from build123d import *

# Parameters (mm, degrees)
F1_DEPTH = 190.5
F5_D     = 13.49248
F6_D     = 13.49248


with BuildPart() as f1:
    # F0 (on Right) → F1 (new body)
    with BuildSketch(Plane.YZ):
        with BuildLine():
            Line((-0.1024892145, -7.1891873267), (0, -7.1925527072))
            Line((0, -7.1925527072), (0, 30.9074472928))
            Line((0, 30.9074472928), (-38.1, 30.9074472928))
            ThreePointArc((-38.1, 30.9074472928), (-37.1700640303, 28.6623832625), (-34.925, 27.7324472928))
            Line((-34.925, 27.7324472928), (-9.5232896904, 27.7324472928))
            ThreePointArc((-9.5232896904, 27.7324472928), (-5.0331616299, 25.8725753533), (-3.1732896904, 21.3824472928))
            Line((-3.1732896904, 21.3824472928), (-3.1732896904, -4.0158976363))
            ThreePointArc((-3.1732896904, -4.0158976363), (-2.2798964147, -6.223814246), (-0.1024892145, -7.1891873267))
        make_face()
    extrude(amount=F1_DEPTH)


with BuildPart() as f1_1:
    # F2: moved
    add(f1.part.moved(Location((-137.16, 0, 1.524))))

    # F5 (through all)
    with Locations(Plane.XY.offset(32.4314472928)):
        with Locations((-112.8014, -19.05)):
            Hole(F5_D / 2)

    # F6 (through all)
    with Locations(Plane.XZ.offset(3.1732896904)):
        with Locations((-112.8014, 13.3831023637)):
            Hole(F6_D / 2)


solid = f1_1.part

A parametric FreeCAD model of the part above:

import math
import FreeCAD as App
import Part
import Sketcher
from FreeCAD import Vector
Q = App.Units.Quantity

doc = App.newDocument("Part")
params = doc.addObject("Spreadsheet::Sheet", "Params")
for row, (alias, value) in enumerate([
    ("sketch1_radius", "0.25 in"),
    ("sketch1_width", "1.5 in"),
    ("sketch1_radius2", "0.125 in"),
    ("pad1_length", "7.5 in"),
    ("hole_diameter", "0.5312 in"),
    ("hole2_diameter", "0.5312 in"),
], start=1):
    params.set(f"A{row}", alias)
    params.set(f"B{row}", "=" + value)
    params.setAlias(f"B{row}", alias)

body = doc.addObject("PartDesign::Body", "Body")

# Sketch on YZ plane
sketch1 = doc.addObject("Sketcher::SketchObject", "Sketch")
body.addObject(sketch1)
sketch1.AttachmentSupport = (doc.YZ_Plane, [""])
sketch1.MapMode = "FlatFace"
sketch1.addGeometry([
    Part.LineSegment(Vector(-0.1, -7.19, 0), Vector(0, -7.19, 0)),  # 0
    Part.LineSegment(Vector(0, -7.19, 0), Vector(0, 30.91, 0)),  # 1
    Part.LineSegment(Vector(0, 30.91, 0), Vector(-38.1, 30.91, 0)),  # 2
    Part.ArcOfCircle(Part.Circle(Vector(-34.92, 30.91, 0), Vector(0, 0, 1), 3.17), math.radians(180), math.radians(270)),  # 3
    Part.LineSegment(Vector(-34.92, 27.73, 0), Vector(-9.52, 27.73, 0)),  # 4
    Part.ArcOfCircle(Part.Circle(Vector(-9.52, 21.38, 0), Vector(0, 0, 1), 6.35), math.radians(0), math.radians(90)),  # 5
    Part.LineSegment(Vector(-3.17, 21.38, 0), Vector(-3.17, -4.02, 0)),  # 6
    Part.ArcOfCircle(Part.Circle(Vector(0, -4.02, 0), Vector(0, 0, 1), 3.17), math.radians(180), math.radians(268)),  # 7
], False)
sketch1.addConstraint([
    Sketcher.Constraint("Coincident", 0, 2, 1, 1),
    Sketcher.Constraint("Coincident", 1, 2, 2, 1),
    Sketcher.Constraint("Coincident", 2, 2, 3, 1),
    Sketcher.Constraint("Tangent", 3, 2, 4, 1),
    Sketcher.Constraint("Tangent", 4, 2, 5, 2),
    Sketcher.Constraint("Tangent", 5, 1, 6, 1),
    Sketcher.Constraint("Tangent", 6, 2, 7, 1),
    Sketcher.Constraint("Tangent", 7, 2, 0, 1),
    Sketcher.Constraint("Vertical", 1),
    Sketcher.Constraint("Horizontal", 2),
    Sketcher.Constraint("Horizontal", 4),
    Sketcher.Constraint("Vertical", 6),
    Sketcher.Constraint("Equal", 3, 7),
    Sketcher.Constraint("PointOnObject", 0, 2, -2),
    Sketcher.Constraint("Horizontal", 3, 3, 1, 2),
    Sketcher.Constraint("Equal", 2, 1),
    Sketcher.Constraint("Radius", 5, Q("0.25 in")),
    Sketcher.Constraint("DistanceX", 2, 2, 2, 1, Q("1.5 in")),
    Sketcher.Constraint("Radius", 3, Q("0.125 in")),
    Sketcher.Constraint("DistanceX", 4, 1, 4, 2, 25.40171),
    Sketcher.Constraint("DistanceX", 7, 2, 7, 3, 0.1042),
    Sketcher.Constraint("DistanceY", -1, 1, 3, 3, 30.907447),
])
sketch1.setExpression("Constraints[16]", "Params.sketch1_radius")
sketch1.setExpression("Constraints[17]", "Params.sketch1_width")
sketch1.setExpression("Constraints[18]", "Params.sketch1_radius2")
pad1 = doc.addObject("PartDesign::Pad", "Pad")
body.addObject(pad1)
pad1.Profile = sketch1
pad1.setExpression("Length", "Params.pad1_length")
body2 = doc.addObject("PartDesign::Body", "Body001")
doc.recompute()

body.Placement = App.Placement(Vector(-137.16, 0, 1.524), App.Rotation(Vector(0, 0, 1), 0))
boolean = doc.addObject("PartDesign::Boolean", "Boolean")
body2.addObject(boolean)
boolean.Type = "Fuse"
boolean.addObjects([body])

# Sketch on XY plane
sketch2 = doc.addObject("Sketcher::SketchObject", "Sketch001")
body2.addObject(sketch2)
sketch2.AttachmentSupport = (doc.getObject("XY_Plane001"), [""])
sketch2.MapMode = "FlatFace"
sketch2.AttachmentOffset = App.Placement(Vector(0, 0, 32.431447), App.Rotation())
sketch2.addGeometry(Part.Circle(Vector(-113, -19, 0), Vector(0, 0, 1), 7), False)
sketch2.addConstraint([
    Sketcher.Constraint("Diameter", 0, Q("0.5312 in")),
    Sketcher.Constraint("DistanceY", 0, 3, -1, 1, Q("0.75 in")),
    Sketcher.Constraint("DistanceX", 0, 3, -1, 1, Q("4.441 in")),
])
doc.recompute()
hole = doc.addObject("PartDesign::Hole", "Hole")
body2.addObject(hole)
hole.Profile = sketch2
hole.ThreadType = "None"
hole.setExpression("Diameter", "Params.hole_diameter")
hole.DepthType = "ThroughAll"

# Sketch on XZ plane
sketch3 = doc.addObject("Sketcher::SketchObject", "Sketch002")
body2.addObject(sketch3)
sketch3.AttachmentSupport = (doc.getObject("XZ_Plane001"), [""])
sketch3.MapMode = "FlatFace"
sketch3.AttachmentOffset = App.Placement(Vector(0, 0, 3.17329), App.Rotation())
sketch3.addGeometry(Part.Circle(Vector(-113, 13, 0), Vector(0, 0, 1), 7), False)
sketch3.addConstraint([
    Sketcher.Constraint("Diameter", 0, Q("0.5312 in")),
    Sketcher.Constraint("DistanceX", 0, 3, -1, 1, Q("4.441 in")),
    Sketcher.Constraint("DistanceY", -1, 1, 0, 3, 13.383102),
])
doc.recompute()
hole2 = doc.addObject("PartDesign::Hole", "Hole001")
body2.addObject(hole2)
hole2.Profile = sketch3
hole2.ThreadType = "None"
hole2.setExpression("Diameter", "Params.hole2_diameter")
hole2.DepthType = "ThroughAll"

doc.recompute()
